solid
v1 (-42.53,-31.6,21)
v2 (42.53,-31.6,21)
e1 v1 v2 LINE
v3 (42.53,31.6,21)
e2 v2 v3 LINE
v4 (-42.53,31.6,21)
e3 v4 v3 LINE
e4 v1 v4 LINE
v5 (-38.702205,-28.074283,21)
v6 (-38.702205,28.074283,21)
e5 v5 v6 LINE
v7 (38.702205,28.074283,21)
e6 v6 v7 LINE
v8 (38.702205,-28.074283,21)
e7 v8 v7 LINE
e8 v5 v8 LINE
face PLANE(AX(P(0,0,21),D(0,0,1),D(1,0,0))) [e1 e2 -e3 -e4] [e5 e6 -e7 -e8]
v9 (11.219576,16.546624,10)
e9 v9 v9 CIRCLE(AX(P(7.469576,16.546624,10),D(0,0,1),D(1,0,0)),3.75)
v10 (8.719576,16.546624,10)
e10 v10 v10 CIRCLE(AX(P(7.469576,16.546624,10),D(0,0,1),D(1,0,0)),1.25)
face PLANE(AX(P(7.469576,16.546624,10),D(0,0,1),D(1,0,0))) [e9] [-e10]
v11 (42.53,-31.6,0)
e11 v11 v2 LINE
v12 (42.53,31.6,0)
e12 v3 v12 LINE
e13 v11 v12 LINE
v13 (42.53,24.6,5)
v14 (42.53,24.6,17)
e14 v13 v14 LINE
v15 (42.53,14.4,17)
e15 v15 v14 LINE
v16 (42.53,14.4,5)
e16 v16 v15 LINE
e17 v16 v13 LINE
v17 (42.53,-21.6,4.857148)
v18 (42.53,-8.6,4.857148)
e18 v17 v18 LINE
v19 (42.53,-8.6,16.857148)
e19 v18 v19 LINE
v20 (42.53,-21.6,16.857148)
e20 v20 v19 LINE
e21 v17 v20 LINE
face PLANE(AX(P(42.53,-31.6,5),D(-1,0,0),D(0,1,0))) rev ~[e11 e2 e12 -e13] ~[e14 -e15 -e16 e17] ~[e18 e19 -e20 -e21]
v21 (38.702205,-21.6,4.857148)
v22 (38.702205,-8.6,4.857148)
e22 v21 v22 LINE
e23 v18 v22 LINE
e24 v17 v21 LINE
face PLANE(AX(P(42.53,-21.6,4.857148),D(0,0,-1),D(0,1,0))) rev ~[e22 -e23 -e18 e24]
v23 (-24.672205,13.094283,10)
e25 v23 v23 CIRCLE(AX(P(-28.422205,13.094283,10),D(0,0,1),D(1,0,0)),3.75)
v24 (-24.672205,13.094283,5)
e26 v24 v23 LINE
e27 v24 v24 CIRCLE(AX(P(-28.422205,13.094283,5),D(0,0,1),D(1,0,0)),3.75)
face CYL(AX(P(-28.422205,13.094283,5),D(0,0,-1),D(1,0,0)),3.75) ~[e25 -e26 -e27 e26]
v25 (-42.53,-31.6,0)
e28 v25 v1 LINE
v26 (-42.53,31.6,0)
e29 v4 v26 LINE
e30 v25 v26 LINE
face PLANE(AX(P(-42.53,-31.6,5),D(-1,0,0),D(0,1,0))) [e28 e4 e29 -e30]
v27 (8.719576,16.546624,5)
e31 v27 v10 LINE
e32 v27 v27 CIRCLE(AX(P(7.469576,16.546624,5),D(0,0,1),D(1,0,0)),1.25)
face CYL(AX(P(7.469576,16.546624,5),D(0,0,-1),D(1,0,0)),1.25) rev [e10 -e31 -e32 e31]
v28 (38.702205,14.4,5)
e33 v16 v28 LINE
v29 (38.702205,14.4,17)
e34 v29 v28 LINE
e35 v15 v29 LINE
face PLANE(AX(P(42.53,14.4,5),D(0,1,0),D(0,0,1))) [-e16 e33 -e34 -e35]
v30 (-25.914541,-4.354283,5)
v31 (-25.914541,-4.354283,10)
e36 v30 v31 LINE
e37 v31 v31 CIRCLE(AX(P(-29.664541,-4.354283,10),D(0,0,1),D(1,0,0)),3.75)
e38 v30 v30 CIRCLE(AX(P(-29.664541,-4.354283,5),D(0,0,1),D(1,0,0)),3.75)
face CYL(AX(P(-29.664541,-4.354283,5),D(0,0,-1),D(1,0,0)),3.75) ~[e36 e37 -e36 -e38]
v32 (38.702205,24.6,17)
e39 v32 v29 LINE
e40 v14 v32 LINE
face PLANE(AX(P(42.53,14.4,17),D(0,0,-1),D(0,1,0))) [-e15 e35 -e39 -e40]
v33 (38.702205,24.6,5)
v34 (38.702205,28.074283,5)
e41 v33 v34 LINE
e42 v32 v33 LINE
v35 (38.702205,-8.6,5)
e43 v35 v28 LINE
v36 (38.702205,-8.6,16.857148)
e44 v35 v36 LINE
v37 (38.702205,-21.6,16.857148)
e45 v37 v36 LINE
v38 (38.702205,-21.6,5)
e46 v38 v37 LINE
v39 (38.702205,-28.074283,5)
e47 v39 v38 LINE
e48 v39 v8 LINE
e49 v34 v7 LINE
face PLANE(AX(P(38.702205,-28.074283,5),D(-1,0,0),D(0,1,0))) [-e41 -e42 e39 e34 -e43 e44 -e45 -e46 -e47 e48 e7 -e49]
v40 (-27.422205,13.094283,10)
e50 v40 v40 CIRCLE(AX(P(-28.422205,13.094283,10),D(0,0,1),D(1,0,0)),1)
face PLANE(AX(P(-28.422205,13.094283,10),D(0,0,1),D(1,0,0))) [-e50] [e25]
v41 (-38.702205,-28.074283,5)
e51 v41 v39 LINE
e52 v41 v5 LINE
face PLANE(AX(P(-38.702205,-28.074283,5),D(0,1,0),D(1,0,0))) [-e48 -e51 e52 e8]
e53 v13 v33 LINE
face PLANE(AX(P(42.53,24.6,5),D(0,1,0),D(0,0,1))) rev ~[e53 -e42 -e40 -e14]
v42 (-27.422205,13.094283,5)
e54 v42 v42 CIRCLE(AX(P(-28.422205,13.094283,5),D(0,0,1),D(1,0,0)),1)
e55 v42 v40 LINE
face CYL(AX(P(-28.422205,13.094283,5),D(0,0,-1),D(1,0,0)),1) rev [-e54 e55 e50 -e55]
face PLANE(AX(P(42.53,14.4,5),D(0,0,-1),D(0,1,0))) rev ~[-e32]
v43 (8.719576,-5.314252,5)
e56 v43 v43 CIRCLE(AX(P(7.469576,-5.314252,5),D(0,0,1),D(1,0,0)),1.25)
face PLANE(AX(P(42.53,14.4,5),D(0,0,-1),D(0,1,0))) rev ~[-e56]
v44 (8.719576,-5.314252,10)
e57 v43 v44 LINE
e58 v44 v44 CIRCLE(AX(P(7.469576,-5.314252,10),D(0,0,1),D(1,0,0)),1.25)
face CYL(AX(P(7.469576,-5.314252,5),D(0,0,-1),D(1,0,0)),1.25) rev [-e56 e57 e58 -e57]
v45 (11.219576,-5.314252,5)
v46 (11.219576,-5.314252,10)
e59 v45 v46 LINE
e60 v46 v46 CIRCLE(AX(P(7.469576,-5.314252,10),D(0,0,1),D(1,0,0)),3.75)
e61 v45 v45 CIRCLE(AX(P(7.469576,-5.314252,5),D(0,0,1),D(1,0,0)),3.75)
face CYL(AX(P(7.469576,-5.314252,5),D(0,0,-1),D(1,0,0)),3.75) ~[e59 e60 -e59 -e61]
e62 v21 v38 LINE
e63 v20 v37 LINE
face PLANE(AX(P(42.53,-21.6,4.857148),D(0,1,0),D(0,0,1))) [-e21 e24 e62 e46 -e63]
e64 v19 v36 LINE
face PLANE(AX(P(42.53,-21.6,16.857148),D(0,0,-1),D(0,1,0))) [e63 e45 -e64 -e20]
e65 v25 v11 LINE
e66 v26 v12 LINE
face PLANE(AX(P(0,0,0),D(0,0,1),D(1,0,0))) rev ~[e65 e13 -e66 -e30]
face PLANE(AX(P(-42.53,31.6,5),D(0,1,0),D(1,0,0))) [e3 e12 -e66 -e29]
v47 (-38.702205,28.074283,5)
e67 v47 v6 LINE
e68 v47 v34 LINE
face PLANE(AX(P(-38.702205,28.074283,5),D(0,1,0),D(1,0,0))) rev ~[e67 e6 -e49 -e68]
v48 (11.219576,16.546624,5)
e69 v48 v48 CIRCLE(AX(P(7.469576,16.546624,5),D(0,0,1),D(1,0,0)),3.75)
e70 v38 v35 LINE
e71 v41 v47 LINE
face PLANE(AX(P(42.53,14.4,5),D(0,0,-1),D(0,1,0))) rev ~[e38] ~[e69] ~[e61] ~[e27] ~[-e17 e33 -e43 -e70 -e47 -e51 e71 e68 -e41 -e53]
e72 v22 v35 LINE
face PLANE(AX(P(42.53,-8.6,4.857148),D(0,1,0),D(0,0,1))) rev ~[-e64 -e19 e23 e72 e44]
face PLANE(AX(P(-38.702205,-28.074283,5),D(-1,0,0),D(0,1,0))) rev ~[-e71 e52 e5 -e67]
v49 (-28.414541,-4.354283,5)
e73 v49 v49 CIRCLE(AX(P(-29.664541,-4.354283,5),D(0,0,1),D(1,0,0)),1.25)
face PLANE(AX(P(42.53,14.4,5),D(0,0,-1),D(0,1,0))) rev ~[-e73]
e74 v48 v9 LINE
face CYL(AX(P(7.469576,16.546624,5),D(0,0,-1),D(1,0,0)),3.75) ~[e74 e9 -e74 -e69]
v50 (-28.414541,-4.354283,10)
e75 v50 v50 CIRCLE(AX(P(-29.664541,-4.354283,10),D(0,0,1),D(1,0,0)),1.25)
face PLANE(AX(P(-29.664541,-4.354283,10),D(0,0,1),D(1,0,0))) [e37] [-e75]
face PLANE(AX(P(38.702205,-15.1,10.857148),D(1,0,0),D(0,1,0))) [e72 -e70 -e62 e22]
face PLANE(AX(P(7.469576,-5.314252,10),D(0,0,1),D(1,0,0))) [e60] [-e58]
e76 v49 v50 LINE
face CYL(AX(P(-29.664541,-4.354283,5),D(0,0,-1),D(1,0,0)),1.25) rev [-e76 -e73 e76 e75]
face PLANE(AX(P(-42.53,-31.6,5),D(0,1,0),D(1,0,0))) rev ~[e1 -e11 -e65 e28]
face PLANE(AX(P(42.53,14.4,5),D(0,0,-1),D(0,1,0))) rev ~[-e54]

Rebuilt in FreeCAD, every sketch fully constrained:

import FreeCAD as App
import Part
import Sketcher

V = App.Vector

doc = App.newDocument("Part")
body = doc.addObject("PartDesign::Body", "Body")

sketch1 = body.newObject("Sketcher::SketchObject", "Sketch")
sketch1.AttachmentSupport = (doc.getObject("XY_Plane"), [""])
sketch1.MapMode = "FlatFace"
sketch1.addGeometry([
    Part.LineSegment(V(-43, 32, 0), V(-43, -32, 0)),
    Part.LineSegment(V(-43, -32, 0), V(43, -32, 0)),
    Part.LineSegment(V(43, -32, 0), V(43, 32, 0)),
    Part.LineSegment(V(43, 32, 0), V(-43, 32, 0)),
], False)
sketch1.addConstraint([
    Sketcher.Constraint("Coincident", 0, 2, 1, 1),
    Sketcher.Constraint("Coincident", 1, 2, 2, 1),
    Sketcher.Constraint("Coincident", 2, 2, 3, 1),
    Sketcher.Constraint("Coincident", 3, 2, 0, 1),
    Sketcher.Constraint("Vertical", 0),
    Sketcher.Constraint("Horizontal", 1),
    Sketcher.Constraint("Vertical", 2),
    Sketcher.Constraint("Horizontal", 3),
    Sketcher.Constraint("Symmetric", 0, 2, 2, 2, -1, 1),
    Sketcher.Constraint("DistanceY", 0, 2, 0, 1, 63.2),
    Sketcher.Constraint("DistanceX", 1, 1, 1, 2, 85.06),
])
pad1 = body.newObject("PartDesign::Pad", "Pad")
pad1.Profile = sketch1
pad1.Length = 5

sketch2 = body.newObject("Sketcher::SketchObject", "Sketch001")
sketch2.AttachmentSupport = (doc.getObject("XY_Plane"), [""])
sketch2.MapMode = "FlatFace"
sketch2.AttachmentOffset = App.Placement(V(0, 0, 5), App.Rotation())
sketch2.addGeometry([
    Part.LineSegment(V(-43, 32, 0), V(-43, -32, 0)),
    Part.LineSegment(V(-43, -32, 0), V(43, -32, 0)),
    Part.LineSegment(V(43, -32, 0), V(43, 32, 0)),
    Part.LineSegment(V(43, 32, 0), V(-43, 32, 0)),
    Part.LineSegment(V(39, -28, 0), V(-39, -28, 0)),
    Part.LineSegment(V(-39, -28, 0), V(-39, 28, 0)),
    Part.LineSegment(V(-39, 28, 0), V(39, 28, 0)),
    Part.LineSegment(V(39, 28, 0), V(39, -28, 0)),
], False)
sketch2.addConstraint([
    Sketcher.Constraint("Coincident", 0, 2, 1, 1),
    Sketcher.Constraint("Coincident", 1, 2, 2, 1),
    Sketcher.Constraint("Coincident", 2, 2, 3, 1),
    Sketcher.Constraint("Coincident", 3, 2, 0, 1),
    Sketcher.Constraint("Coincident", 4, 2, 5, 1),
    Sketcher.Constraint("Coincident", 5, 2, 6, 1),
    Sketcher.Constraint("Coincident", 6, 2, 7, 1),
    Sketcher.Constraint("Coincident", 7, 2, 4, 1),
    Sketcher.Constraint("Vertical", 0),
    Sketcher.Constraint("Horizontal", 1),
    Sketcher.Constraint("Vertical", 2),
    Sketcher.Constraint("Horizontal", 3),
    Sketcher.Constraint("Horizontal", 4),
    Sketcher.Constraint("Vertical", 5),
    Sketcher.Constraint("Horizontal", 6),
    Sketcher.Constraint("Vertical", 7),
    Sketcher.Constraint("Symmetric", 0, 2, 2, 2, -1, 1),
    Sketcher.Constraint("Symmetric", 4, 2, 6, 2, -1, 1),
    Sketcher.Constraint("DistanceY", 0, 2, 0, 1, 63.2),
    Sketcher.Constraint("DistanceX", 1, 1, 1, 2, 85.06),
    Sketcher.Constraint("DistanceX", 4, 2, 4, 1, 77.40441),
    Sketcher.Constraint("DistanceY", 5, 1, 5, 2, 56.148566),
])
pad2 = body.newObject("PartDesign::Pad", "Pad001")
pad2.Profile = sketch2
pad2.Length = 16

sketch3 = body.newObject("Sketcher::SketchObject", "Sketch002")
sketch3.AttachmentSupport = (doc.getObject("YZ_Plane"), [""])
sketch3.MapMode = "FlatFace"
sketch3.AttachmentOffset = App.Placement(V(0, 0, 42.53), App.Rotation())
sketch3.addGeometry([
    Part.LineSegment(V(14, 17, 0), V(14, 5, 0)),
    Part.LineSegment(V(14, 5, 0), V(25, 5, 0)),
    Part.LineSegment(V(25, 5, 0), V(25, 17, 0)),
    Part.LineSegment(V(25, 17, 0), V(14, 17, 0)),
], False)
sketch3.addConstraint([
    Sketcher.Constraint("Coincident", 0, 2, 1, 1),
    Sketcher.Constraint("Coincident", 1, 2, 2, 1),
    Sketcher.Constraint("Coincident", 2, 2, 3, 1),
    Sketcher.Constraint("Coincident", 3, 2, 0, 1),
    Sketcher.Constraint("Vertical", 0),
    Sketcher.Constraint("Horizontal", 1),
    Sketcher.Constraint("Vertical", 2),
    Sketcher.Constraint("Horizontal", 3),
    Sketcher.Constraint("DistanceY", 0, 2, 0, 1, 12.0),
    Sketcher.Constraint("DistanceX", 1, 1, 1, 2, 10.2),
    Sketcher.Constraint("DistanceY", -1, 1, 0, 2, 5.0),
    Sketcher.Constraint("DistanceX", -1, 1, 0, 2, 14.4),
])
pocket1 = body.newObject("PartDesign::Pocket", "Pocket")
pocket1.Profile = sketch3
pocket1.Length = 25

sketch4 = body.newObject("Sketcher::SketchObject", "Sketch003")
sketch4.AttachmentSupport = (doc.getObject("YZ_Plane"), [""])
sketch4.MapMode = "FlatFace"
sketch4.AttachmentOffset = App.Placement(V(0, 0, 42.53), App.Rotation())
sketch4.addGeometry([
    Part.LineSegment(V(-22, 17, 0), V(-22, 5, 0)),
    Part.LineSegment(V(-22, 5, 0), V(-9, 5, 0)),
    Part.LineSegment(V(-9, 5, 0), V(-9, 17, 0)),
    Part.LineSegment(V(-9, 17, 0), V(-22, 17, 0)),
], False)
sketch4.addConstraint([
    Sketcher.Constraint("Coincident", 0, 2, 1, 1),
    Sketcher.Constraint("Coincident", 1, 2, 2, 1),
    Sketcher.Constraint("Coincident", 2, 2, 3, 1),
    Sketcher.Constraint("Coincident", 3, 2, 0, 1),
    Sketcher.Constraint("Vertical", 0),
    Sketcher.Constraint("Horizontal", 1),
    Sketcher.Constraint("Vertical", 2),
    Sketcher.Constraint("Horizontal", 3),
    Sketcher.Constraint("DistanceX", 1, 1, 1, 2, 13.0),
    Sketcher.Constraint("DistanceY", 0, 2, 0, 1, 12.0),
    Sketcher.Constraint("DistanceX", 0, 2, -1, 1, 21.6),
    Sketcher.Constraint("DistanceY", -1, 1, 0, 2, 4.857148),
])
pocket2 = body.newObject("PartDesign::Pocket", "Pocket001")
pocket2.Profile = sketch4
pocket2.Length = 3.827795

sketch5 = body.newObject("Sketcher::SketchObject", "Sketch004")
sketch5.AttachmentSupport = (doc.getObject("XY_Plane"), [""])
sketch5.MapMode = "FlatFace"
sketch5.AttachmentOffset = App.Placement(V(0, 0, 5), App.Rotation())
sketch5.addGeometry([
    Part.Circle(V(-28.4, 13.1, 0), V(0, 0, 1), 3.8),
    Part.Circle(V(-28.4, 13.1, 0), V(0, 0, 1), 1),
    Part.Circle(V(-29.7, -4.4, 0), V(0, 0, 1), 3.8),
    Part.Circle(V(-29.7, -4.4, 0), V(0, 0, 1), 1.2),
    Part.Circle(V(7.5, 16.5, 0), V(0, 0, 1), 3.8),
    Part.Circle(V(7.5, 16.5, 0), V(0, 0, 1), 1.2),
    Part.Circle(V(7.5, -5.3, 0), V(0, 0, 1), 3.8),
    Part.Circle(V(7.5, -5.3, 0), V(0, 0, 1), 1.2),
], False)
sketch5.addConstraint([
    Sketcher.Constraint("Coincident", 1, 3, 0, 3),
    Sketcher.Constraint("Coincident", 3, 3, 2, 3),
    Sketcher.Constraint("Coincident", 5, 3, 4, 3),
    Sketcher.Constraint("Coincident", 7, 3, 6, 3),
    Sketcher.Constraint("Equal", 0, 2),
    Sketcher.Constraint("Equal", 2, 4),
    Sketcher.Constraint("Equal", 3, 5),
    Sketcher.Constraint("Equal", 4, 6),
    Sketcher.Constraint("Equal", 5, 7),
    Sketcher.Constraint("Vertical", 5, 3, 6, 3),
    Sketcher.Constraint("Diameter", 1, 2.0),
    Sketcher.Constraint("Diameter", 0, 7.5),
    Sketcher.Constraint("Diameter", 3, 2.5),
    Sketcher.Constraint("DistanceX", 2, 3, -1, 1, 29.664541),
    Sketcher.Constraint("DistanceY", 6, 3, -1, 1, 5.314252),
    Sketcher.Constraint("DistanceX", 0, 3, 4, 3, 35.891781),
    Sketcher.Constraint("DistanceY", 0, 3, 4, 3, 3.452341),
    Sketcher.Constraint("DistanceY", 6, 3, 2, 3, 0.959969),
    Sketcher.Constraint("DistanceX", 0, 3, -1, 1, 28.422205),
    Sketcher.Constraint("DistanceY", -1, 1, 0, 3, 13.094283),
])
pad3 = body.newObject("PartDesign::Pad", "Pad002")
pad3.Profile = sketch5
pad3.Length = 5

doc.recompute()
